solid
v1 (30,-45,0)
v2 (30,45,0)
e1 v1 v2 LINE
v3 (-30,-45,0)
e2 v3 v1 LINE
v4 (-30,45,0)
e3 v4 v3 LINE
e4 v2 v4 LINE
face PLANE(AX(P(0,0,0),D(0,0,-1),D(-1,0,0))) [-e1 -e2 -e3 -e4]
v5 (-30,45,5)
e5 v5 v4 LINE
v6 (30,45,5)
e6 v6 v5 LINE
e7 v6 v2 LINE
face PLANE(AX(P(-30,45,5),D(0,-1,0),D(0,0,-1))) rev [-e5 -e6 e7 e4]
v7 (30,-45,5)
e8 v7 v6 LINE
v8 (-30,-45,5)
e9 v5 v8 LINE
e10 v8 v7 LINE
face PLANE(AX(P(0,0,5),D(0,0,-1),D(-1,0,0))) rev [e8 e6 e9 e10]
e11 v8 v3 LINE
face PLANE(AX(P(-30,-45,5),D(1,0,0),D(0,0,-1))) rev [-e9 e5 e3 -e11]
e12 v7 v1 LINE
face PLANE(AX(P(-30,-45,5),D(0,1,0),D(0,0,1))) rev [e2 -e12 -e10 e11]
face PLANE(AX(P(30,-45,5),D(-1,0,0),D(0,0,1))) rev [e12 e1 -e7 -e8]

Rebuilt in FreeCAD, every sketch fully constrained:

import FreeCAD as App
import Part
import Sketcher
from FreeCAD import Vector
Q = App.Units.Quantity

doc = App.newDocument("Part")
body = doc.addObject("PartDesign::Body", "Body")

# Sketch on XY plane
sketch1 = body.newObject("Sketcher::SketchObject", "Sketch")
sketch1.AttachmentSupport = (doc.getObject("XY_Plane"), [""])
sketch1.MapMode = "FlatFace"
sketch1.addGeometry(Part.LineSegment(Vector(-30, 45, 0), Vector(-30, -45, 0)), False)
sketch1.addGeometry(Part.LineSegment(Vector(-30, -45, 0), Vector(30, -45, 0)), False)
sketch1.addGeometry(Part.LineSegment(Vector(30, -45, 0), Vector(30, 45, 0)), False)
sketch1.addGeometry(Part.LineSegment(Vector(30, 45, 0), Vector(-30, 45, 0)), False)
sketch1.addConstraint(Sketcher.Constraint("Coincident", 0, 2, 1, 1))
sketch1.addConstraint(Sketcher.Constraint("Coincident", 1, 2, 2, 1))
sketch1.addConstraint(Sketcher.Constraint("Coincident", 2, 2, 3, 1))
sketch1.addConstraint(Sketcher.Constraint("Coincident", 3, 2, 0, 1))
sketch1.addConstraint(Sketcher.Constraint("Vertical", 0))
sketch1.addConstraint(Sketcher.Constraint("Horizontal", 1))
sketch1.addConstraint(Sketcher.Constraint("Vertical", 2))
sketch1.addConstraint(Sketcher.Constraint("Horizontal", 3))
sketch1.addConstraint(Sketcher.Constraint("Symmetric", 0, 2, 2, 2, -1, 1))
sketch1.addConstraint(Sketcher.Constraint("DistanceX", 1, 1, 1, 2, Q("60 mm")))
sketch1.addConstraint(Sketcher.Constraint("DistanceY", 0, 2, 0, 1, Q("90 mm")))
pad1 = body.newObject("PartDesign::Pad", "Pad")
pad1.Profile = sketch1
pad1.Length = 5

doc.recompute()
